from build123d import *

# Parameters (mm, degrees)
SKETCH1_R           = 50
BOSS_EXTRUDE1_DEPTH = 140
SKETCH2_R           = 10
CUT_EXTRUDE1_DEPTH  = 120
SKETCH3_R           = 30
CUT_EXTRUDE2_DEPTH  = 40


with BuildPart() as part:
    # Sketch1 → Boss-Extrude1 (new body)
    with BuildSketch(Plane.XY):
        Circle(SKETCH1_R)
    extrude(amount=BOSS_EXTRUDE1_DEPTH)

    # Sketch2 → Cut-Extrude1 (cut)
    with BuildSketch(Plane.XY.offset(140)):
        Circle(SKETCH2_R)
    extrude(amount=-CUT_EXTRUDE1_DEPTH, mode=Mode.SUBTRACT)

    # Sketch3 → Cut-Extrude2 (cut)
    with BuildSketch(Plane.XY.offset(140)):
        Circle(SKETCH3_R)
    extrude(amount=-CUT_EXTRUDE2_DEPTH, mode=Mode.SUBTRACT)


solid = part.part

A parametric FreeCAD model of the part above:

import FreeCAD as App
import Part
import Sketcher

doc = App.newDocument("Part")
params = doc.addObject("Spreadsheet::Sheet", "Params")
for row, (alias, value) in enumerate([
    ("sketch1_diameter", "100 mm"),
    ("pad1_length", "140 mm"),
    ("sketch2_diameter", "20 mm"),
    ("pocket1_length", "120 mm"),
    ("sketch3_diameter", "60 mm"),
    ("pocket2_length", "40 mm"),
], start=1):
    params.set(f"A{row}", alias)
    params.set(f"B{row}", "=" + value)
    params.setAlias(f"B{row}", alias)

body = doc.addObject("PartDesign::Body", "Body")

# Sketch on XY plane
sketch1 = body.newObject("Sketcher::SketchObject", "Sketch")
sketch1.AttachmentSupport = (doc.getObject("XY_Plane"), [""])
sketch1.MapMode = "FlatFace"
sketch1.addGeometry(Part.Circle(App.Vector(0, 0, 0), App.Vector(0, 0, 1), 50), False)
sketch1.addConstraint([
    Sketcher.Constraint("Coincident", 0, 3, -1, 1),
    Sketcher.Constraint("Diameter", 0, 100.0),
])
sketch1.setExpression("Constraints[1]", "Params.sketch1_diameter")
pad1 = body.newObject("PartDesign::Pad", "Pad")
pad1.Profile = sketch1
pad1.setExpression("Length", "Params.pad1_length")

# Sketch on XY plane
sketch2 = body.newObject("Sketcher::SketchObject", "Sketch001")
sketch2.AttachmentSupport = (doc.getObject("XY_Plane"), [""])
sketch2.MapMode = "FlatFace"
sketch2.AttachmentOffset = App.Placement(App.Vector(0, 0, 140), App.Rotation())
sketch2.addGeometry(Part.Circle(App.Vector(0, 0, 0), App.Vector(0, 0, 1), 10), False)
sketch2.addConstraint([
    Sketcher.Constraint("Coincident", 0, 3, -1, 1),
    Sketcher.Constraint("Diameter", 0, 20.0),
])
sketch2.setExpression("Constraints[1]", "Params.sketch2_diameter")
pocket1 = body.newObject("PartDesign::Pocket", "Pocket")
pocket1.Profile = sketch2
pocket1.setExpression("Length", "Params.pocket1_length")

# Sketch on XY plane
sketch3 = body.newObject("Sketcher::SketchObject", "Sketch002")
sketch3.AttachmentSupport = (doc.getObject("XY_Plane"), [""])
sketch3.MapMode = "FlatFace"
sketch3.AttachmentOffset = App.Placement(App.Vector(0, 0, 140), App.Rotation())
sketch3.addGeometry(Part.Circle(App.Vector(0, 0, 0), App.Vector(0, 0, 1), 30), False)
sketch3.addConstraint([
    Sketcher.Constraint("Coincident", 0, 3, -1, 1),
    Sketcher.Constraint("Diameter", 0, 60.0),
])
sketch3.setExpression("Constraints[1]", "Params.sketch3_diameter")
pocket2 = body.newObject("PartDesign::Pocket", "Pocket001")
pocket2.Profile = sketch3
pocket2.setExpression("Length", "Params.pocket2_length")

doc.recompute()
